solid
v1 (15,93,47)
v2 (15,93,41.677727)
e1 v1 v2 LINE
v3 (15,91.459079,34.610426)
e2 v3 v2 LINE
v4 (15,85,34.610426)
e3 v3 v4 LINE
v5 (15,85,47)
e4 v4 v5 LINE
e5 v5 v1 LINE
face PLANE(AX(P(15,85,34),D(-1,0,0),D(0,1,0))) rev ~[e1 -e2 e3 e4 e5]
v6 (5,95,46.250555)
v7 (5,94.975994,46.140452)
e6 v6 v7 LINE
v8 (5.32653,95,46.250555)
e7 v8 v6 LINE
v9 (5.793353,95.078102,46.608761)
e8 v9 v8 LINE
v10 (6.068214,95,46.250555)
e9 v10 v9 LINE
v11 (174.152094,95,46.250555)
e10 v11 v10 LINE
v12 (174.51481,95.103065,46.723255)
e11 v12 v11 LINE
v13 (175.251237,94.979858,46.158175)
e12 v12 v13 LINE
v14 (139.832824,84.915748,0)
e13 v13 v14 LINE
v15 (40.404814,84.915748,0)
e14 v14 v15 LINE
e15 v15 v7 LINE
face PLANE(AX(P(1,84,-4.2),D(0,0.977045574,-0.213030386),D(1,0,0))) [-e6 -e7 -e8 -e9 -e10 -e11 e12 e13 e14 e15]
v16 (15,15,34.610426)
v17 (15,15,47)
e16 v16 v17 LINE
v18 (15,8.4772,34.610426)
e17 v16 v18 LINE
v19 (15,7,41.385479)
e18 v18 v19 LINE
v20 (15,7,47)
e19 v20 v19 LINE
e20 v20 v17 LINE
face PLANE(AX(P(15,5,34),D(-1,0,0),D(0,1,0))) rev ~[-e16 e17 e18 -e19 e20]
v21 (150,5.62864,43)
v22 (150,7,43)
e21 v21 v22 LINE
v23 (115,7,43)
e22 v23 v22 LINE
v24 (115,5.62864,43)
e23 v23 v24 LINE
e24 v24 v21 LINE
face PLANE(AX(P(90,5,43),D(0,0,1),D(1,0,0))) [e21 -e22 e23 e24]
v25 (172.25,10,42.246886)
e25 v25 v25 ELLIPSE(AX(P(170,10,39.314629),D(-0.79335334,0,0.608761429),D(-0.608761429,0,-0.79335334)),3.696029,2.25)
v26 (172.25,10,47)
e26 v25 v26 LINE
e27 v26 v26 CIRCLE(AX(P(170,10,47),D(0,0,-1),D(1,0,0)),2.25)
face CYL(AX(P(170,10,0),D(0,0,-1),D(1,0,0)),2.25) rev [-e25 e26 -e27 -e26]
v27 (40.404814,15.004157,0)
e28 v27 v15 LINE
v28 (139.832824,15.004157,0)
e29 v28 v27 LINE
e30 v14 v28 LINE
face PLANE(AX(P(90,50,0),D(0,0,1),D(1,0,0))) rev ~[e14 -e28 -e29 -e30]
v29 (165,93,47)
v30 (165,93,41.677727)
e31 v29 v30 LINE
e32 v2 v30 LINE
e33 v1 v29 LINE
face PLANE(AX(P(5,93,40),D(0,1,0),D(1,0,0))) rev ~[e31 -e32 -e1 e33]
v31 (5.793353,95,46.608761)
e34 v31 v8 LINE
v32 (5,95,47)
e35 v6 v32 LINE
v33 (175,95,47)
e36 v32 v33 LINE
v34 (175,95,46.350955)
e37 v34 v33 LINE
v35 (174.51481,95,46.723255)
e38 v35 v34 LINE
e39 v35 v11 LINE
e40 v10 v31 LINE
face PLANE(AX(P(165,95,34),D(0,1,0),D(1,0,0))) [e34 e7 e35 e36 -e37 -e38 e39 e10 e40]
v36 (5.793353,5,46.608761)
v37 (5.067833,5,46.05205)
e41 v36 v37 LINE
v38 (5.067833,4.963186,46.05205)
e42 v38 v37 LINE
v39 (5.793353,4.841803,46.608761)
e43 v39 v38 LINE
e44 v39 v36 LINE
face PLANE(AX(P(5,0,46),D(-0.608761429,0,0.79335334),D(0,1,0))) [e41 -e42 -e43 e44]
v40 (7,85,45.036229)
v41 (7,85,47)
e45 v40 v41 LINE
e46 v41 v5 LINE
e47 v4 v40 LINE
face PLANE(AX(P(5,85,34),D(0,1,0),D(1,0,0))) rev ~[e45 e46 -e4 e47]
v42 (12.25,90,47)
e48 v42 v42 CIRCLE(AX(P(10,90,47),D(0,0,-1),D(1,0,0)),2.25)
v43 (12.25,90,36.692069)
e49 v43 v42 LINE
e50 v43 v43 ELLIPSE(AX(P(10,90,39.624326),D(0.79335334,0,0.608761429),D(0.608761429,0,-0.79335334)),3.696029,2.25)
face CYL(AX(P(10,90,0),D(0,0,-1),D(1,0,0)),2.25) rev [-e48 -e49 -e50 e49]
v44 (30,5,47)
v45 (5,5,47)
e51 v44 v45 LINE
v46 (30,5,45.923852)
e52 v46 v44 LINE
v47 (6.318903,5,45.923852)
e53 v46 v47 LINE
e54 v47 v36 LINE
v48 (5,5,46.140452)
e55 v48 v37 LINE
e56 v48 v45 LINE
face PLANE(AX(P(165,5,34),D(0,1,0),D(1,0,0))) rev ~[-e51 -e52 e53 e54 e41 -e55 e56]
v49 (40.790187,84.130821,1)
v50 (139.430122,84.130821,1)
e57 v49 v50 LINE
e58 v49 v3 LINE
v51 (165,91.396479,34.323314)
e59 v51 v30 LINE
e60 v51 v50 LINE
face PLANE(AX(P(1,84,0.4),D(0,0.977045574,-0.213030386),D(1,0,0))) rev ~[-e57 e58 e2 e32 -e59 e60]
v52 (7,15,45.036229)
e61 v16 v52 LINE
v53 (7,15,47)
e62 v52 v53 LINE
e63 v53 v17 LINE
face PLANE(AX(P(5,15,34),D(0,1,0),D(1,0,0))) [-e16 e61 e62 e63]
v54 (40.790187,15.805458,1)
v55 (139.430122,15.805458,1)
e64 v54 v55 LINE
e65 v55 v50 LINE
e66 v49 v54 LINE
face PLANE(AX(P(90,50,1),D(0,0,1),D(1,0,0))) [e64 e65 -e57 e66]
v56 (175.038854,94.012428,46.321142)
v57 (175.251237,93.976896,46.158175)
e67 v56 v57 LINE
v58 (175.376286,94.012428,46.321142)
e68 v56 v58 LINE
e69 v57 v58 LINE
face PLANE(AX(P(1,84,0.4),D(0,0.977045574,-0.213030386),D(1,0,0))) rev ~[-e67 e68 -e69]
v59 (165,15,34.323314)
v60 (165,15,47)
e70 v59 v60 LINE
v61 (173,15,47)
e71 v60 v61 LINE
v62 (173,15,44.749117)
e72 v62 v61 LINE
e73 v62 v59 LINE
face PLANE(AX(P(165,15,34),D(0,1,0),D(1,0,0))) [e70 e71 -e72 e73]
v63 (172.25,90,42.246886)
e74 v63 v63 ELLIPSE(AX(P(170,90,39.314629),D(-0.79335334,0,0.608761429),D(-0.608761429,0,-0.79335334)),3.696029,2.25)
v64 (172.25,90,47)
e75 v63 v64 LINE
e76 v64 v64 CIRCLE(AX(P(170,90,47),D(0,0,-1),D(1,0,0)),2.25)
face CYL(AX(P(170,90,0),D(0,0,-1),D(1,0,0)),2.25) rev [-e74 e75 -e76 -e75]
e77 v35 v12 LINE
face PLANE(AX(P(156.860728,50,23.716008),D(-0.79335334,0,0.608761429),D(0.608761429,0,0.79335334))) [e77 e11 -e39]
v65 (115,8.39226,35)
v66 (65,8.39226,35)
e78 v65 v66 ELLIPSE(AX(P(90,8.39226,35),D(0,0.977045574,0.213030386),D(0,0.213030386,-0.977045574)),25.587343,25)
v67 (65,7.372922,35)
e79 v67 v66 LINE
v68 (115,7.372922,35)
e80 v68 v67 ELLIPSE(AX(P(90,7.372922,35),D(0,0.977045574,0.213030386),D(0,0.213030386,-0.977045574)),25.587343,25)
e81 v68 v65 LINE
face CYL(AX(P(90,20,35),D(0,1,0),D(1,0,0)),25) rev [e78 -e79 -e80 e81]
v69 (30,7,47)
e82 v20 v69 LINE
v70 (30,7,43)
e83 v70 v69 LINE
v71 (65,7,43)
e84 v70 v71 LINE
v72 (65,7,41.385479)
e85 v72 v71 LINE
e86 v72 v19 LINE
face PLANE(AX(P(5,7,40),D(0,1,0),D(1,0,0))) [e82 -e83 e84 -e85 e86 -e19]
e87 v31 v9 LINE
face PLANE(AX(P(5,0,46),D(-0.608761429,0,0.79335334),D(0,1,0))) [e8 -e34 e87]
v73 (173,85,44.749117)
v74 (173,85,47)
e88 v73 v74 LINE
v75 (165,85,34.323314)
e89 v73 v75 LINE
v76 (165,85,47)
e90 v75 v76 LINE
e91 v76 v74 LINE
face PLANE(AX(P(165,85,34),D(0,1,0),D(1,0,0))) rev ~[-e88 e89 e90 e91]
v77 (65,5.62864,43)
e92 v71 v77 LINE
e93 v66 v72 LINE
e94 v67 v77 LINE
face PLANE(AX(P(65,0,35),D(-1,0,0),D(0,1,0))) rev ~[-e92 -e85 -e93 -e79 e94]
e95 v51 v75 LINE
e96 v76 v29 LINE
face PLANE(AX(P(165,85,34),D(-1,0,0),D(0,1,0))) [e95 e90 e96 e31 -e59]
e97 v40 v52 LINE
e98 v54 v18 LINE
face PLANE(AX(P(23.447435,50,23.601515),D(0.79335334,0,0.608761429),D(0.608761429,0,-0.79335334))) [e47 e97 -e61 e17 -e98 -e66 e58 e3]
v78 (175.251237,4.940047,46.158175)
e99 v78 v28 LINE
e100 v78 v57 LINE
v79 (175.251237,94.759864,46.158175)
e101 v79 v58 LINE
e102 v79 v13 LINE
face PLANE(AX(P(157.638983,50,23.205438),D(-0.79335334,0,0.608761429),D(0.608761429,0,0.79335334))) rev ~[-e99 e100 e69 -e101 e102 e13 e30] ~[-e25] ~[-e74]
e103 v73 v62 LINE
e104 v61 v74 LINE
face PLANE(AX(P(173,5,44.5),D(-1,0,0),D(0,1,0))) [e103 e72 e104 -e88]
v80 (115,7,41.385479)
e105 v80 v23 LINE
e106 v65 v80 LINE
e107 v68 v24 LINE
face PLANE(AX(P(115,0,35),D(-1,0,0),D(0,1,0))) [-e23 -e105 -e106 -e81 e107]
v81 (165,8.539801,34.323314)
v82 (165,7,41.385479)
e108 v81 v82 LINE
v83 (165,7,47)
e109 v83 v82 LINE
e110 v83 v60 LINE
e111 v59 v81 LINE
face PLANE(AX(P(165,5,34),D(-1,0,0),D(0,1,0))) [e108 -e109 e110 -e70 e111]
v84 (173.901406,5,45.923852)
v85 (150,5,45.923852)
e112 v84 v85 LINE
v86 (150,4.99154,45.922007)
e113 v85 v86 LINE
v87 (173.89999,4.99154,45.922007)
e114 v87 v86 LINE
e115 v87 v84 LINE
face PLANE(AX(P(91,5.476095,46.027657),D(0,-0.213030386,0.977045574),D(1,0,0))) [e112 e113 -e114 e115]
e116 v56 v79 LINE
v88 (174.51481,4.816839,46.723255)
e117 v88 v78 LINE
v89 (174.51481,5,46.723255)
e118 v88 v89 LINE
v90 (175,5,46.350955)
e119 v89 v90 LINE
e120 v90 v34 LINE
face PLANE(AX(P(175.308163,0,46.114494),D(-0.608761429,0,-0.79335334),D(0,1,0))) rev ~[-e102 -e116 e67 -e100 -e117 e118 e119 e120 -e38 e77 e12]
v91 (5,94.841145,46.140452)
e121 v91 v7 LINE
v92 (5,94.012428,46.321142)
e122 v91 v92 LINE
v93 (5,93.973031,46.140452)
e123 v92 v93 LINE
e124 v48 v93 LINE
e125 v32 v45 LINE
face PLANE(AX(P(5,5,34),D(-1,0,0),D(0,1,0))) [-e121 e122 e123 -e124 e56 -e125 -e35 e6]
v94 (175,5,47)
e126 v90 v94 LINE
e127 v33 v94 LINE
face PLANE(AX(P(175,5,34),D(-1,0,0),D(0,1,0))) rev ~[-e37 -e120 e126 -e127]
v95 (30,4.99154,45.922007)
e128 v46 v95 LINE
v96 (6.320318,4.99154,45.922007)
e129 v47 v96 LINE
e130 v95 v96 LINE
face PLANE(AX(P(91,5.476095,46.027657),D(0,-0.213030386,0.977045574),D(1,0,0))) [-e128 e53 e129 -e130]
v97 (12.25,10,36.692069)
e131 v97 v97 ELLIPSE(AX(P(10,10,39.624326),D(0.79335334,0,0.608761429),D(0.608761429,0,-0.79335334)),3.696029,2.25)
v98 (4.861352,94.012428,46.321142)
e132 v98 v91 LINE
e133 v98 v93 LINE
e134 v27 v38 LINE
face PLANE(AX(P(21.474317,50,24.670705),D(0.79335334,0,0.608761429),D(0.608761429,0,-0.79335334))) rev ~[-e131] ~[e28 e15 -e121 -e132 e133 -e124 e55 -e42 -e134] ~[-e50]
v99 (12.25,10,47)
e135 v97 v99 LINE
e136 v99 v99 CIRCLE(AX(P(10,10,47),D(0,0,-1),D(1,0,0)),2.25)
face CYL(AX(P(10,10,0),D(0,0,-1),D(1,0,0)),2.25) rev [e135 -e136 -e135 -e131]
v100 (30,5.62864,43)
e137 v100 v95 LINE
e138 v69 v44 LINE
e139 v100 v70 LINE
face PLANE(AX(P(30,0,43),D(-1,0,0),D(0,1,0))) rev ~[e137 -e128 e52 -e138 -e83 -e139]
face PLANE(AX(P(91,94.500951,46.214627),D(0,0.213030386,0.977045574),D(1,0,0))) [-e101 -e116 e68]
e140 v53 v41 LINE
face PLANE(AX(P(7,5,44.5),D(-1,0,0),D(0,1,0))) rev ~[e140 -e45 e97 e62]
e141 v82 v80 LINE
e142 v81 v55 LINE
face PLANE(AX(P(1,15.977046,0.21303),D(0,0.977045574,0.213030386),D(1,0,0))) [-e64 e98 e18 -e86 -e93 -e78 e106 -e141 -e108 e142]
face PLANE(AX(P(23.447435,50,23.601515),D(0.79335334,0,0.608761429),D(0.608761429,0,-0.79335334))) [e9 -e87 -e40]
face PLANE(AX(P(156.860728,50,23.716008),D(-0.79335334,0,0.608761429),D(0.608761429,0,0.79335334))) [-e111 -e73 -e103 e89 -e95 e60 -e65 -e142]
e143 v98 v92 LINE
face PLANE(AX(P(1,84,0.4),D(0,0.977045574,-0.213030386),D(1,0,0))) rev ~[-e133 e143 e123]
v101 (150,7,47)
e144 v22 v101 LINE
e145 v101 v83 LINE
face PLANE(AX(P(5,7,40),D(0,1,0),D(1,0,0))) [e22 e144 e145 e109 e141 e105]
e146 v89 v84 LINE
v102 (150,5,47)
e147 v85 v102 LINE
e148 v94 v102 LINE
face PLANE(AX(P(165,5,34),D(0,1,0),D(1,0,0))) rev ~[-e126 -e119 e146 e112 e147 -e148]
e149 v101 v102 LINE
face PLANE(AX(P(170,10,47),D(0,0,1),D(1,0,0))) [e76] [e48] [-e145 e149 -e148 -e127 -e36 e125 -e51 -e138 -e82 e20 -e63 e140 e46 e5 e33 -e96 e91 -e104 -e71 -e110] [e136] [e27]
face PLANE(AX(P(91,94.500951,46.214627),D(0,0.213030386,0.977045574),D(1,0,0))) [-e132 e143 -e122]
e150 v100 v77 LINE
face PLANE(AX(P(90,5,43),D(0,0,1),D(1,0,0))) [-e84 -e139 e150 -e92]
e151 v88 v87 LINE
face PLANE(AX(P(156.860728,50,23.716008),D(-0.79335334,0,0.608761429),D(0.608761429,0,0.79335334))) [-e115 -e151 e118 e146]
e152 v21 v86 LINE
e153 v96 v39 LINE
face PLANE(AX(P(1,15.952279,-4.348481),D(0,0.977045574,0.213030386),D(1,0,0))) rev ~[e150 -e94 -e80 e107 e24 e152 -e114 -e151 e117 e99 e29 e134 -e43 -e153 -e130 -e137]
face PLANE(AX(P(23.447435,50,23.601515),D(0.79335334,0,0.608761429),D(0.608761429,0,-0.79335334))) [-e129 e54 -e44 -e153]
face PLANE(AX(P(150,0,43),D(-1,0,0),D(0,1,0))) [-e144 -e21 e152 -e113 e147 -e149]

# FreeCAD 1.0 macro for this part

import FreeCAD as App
import Part
import Sketcher

V = App.Vector


def add_polygon(sketch, points):
    """Adds a closed chain of lines whose ends are joined by coincident constraints."""
    first, n = sketch.GeometryCount, len(points)
    for a, b in zip(points, points[1:] + points[:1]):
        sketch.addGeometry(Part.LineSegment(App.Vector(*a, 0), App.Vector(*b, 0)), False)
    for i in range(n):
        sketch.addConstraint(Sketcher.Constraint("Coincident", first + i, 2, first + (i + 1) % n, 1))

doc = App.newDocument("Part")
body = doc.addObject("PartDesign::Body", "Body")

# Sketch on XY plane
sketch1 = doc.addObject("Sketcher::SketchObject", "Sketch")
body.addObject(sketch1)
sketch1.AttachmentSupport = (doc.XY_Plane, [""])
sketch1.MapMode = "FlatFace"
sketch1.AttachmentOffset = App.Placement(V(0, 0, 35), App.Rotation())
add_polygon(sketch1, [(65, 20), (65, 0), (115, 0), (115, 20)])  # lines 0-3
sketch1.addConstraint(Sketcher.Constraint("Vertical", 0))
sketch1.addConstraint(Sketcher.Constraint("Horizontal", 1))
sketch1.addConstraint(Sketcher.Constraint("Vertical", 2))
sketch1.addConstraint(Sketcher.Constraint("Horizontal", 3))
sketch1.addConstraint(Sketcher.Constraint("PointOnObject", 0, 2, -1))
sketch1.addConstraint(Sketcher.Constraint("DistanceX", 1, 1, 1, 2, 50.0))
sketch1.addConstraint(Sketcher.Constraint("DistanceY", 0, 2, 0, 1, 20.0))
sketch1.addConstraint(Sketcher.Constraint("DistanceX", -1, 1, 0, 2, 65.0))
pad1 = doc.addObject("PartDesign::Pad", "Pad")
body.addObject(pad1)
pad1.Profile = sketch1
pad1.Length = 25
body2 = doc.addObject("PartDesign::Body", "Body001")

# Sketch on XY plane
sketch2 = doc.addObject("Sketcher::SketchObject", "Sketch001")
body2.addObject(sketch2)
sketch2.AttachmentSupport = (doc.getObject("XY_Plane001"), [""])
sketch2.MapMode = "FlatFace"
sketch2.addGeometry(Part.Circle(V(0, 0, 0), V(0, 0, 1), 25), False)
sketch2.addConstraint(Sketcher.Constraint("Coincident", 0, 3, -1, 1))
sketch2.addConstraint(Sketcher.Constraint("Diameter", 0, 50.0))
pad2 = doc.addObject("PartDesign::Pad", "Pad001")
body2.addObject(pad2)
pad2.Profile = sketch2
pad2.Length = 20
body3 = doc.addObject("PartDesign::Body", "Body002")
doc.recompute()

body2.Placement = App.Placement(V(0, 0, 0), App.Rotation(V(1, 0, 0), 90))
boolean = doc.addObject("PartDesign::Boolean", "Boolean")
body3.addObject(boolean)
boolean.Type = "Fuse"
boolean.addObjects([body2])
body4 = doc.addObject("PartDesign::Body", "Body003")
doc.recompute()

body3.Placement = App.Placement(V(90, 20, 35), App.Rotation(V(0, 0, 1), 0))
boolean2 = doc.addObject("PartDesign::Boolean", "Boolean001")
body4.addObject(boolean2)
boolean2.Type = "Fuse"
boolean2.addObjects([body3])
body5 = doc.addObject("PartDesign::Body", "Body004")

# Sketch on XY plane
sketch3 = doc.addObject("Sketcher::SketchObject", "Sketch002")
body5.addObject(sketch3)
sketch3.AttachmentSupport = (doc.getObject("XY_Plane004"), [""])
sketch3.MapMode = "FlatFace"
sketch3.AttachmentOffset = App.Placement(V(0, 0, 43), App.Rotation())
add_polygon(sketch3, [(30, 10), (30, 0), (150, 0), (150, 10)])  # lines 0-3
sketch3.addConstraint(Sketcher.Constraint("Vertical", 0))
sketch3.addConstraint(Sketcher.Constraint("Horizontal", 1))
sketch3.addConstraint(Sketcher.Constraint("Vertical", 2))
sketch3.addConstraint(Sketcher.Constraint("Horizontal", 3))
sketch3.addConstraint(Sketcher.Constraint("PointOnObject", 0, 2, -1))
sketch3.addConstraint(Sketcher.Constraint("DistanceX", 1, 1, 1, 2, 120.0))
sketch3.addConstraint(Sketcher.Constraint("DistanceY", 0, 2, 0, 1, 10.0))
sketch3.addConstraint(Sketcher.Constraint("DistanceX", -1, 1, 0, 2, 30.0))
pad3 = doc.addObject("PartDesign::Pad", "Pad002")
body5.addObject(pad3)
pad3.Profile = sketch3
pad3.Length = 10
body6 = doc.addObject("PartDesign::Body", "Body005")

# Sketch on XY plane
sketch4 = doc.addObject("Sketcher::SketchObject", "Sketch003")
body6.addObject(sketch4)
sketch4.AttachmentSupport = (doc.getObject("XY_Plane005"), [""])
sketch4.MapMode = "FlatFace"
sketch4.addGeometry(Part.Circle(V(170, 90, 0), V(0, 0, 1), 2.2), False)
sketch4.addConstraint(Sketcher.Constraint("Diameter", 0, 4.5))
sketch4.addConstraint(Sketcher.Constraint("DistanceX", -1, 1, 0, 3, 170.0))
sketch4.addConstraint(Sketcher.Constraint("DistanceY", -1, 1, 0, 3, 90.0))
pad4 = doc.addObject("PartDesign::Pad", "Pad003")
body6.addObject(pad4)
pad4.Profile = sketch4
pad4.Length = 60
body7 = doc.addObject("PartDesign::Body", "Body006")

# Sketch on XY plane
sketch5 = doc.addObject("Sketcher::SketchObject", "Sketch004")
body7.addObject(sketch5)
sketch5.AttachmentSupport = (doc.getObject("XY_Plane006"), [""])
sketch5.MapMode = "FlatFace"
sketch5.addGeometry(Part.Circle(V(10, 90, 0), V(0, 0, 1), 2.2), False)
sketch5.addConstraint(Sketcher.Constraint("Diameter", 0, 4.5))
sketch5.addConstraint(Sketcher.Constraint("DistanceX", -1, 1, 0, 3, 10.0))
sketch5.addConstraint(Sketcher.Constraint("DistanceY", -1, 1, 0, 3, 90.0))
pad5 = doc.addObject("PartDesign::Pad", "Pad004")
body7.addObject(pad5)
pad5.Profile = sketch5
pad5.Length = 60
body8 = doc.addObject("PartDesign::Body", "Body007")

# Sketch on XY plane
sketch6 = doc.addObject("Sketcher::SketchObject", "Sketch005")
body8.addObject(sketch6)
sketch6.AttachmentSupport = (doc.getObject("XY_Plane007"), [""])
sketch6.MapMode = "FlatFace"
sketch6.addGeometry(Part.Circle(V(170, 10, 0), V(0, 0, 1), 2.2), False)
sketch6.addConstraint(Sketcher.Constraint("Diameter", 0, 4.5))
sketch6.addConstraint(Sketcher.Constraint("DistanceX", -1, 1, 0, 3, 170.0))
sketch6.addConstraint(Sketcher.Constraint("DistanceY", -1, 1, 0, 3, 10.0))
pad6 = doc.addObject("PartDesign::Pad", "Pad005")
body8.addObject(pad6)
pad6.Profile = sketch6
pad6.Length = 60
body9 = doc.addObject("PartDesign::Body", "Body008")

# Sketch on XY plane
sketch7 = doc.addObject("Sketcher::SketchObject", "Sketch006")
body9.addObject(sketch7)
sketch7.AttachmentSupport = (doc.getObject("XY_Plane008"), [""])
sketch7.MapMode = "FlatFace"
sketch7.addGeometry(Part.Circle(V(10, 10, 0), V(0, 0, 1), 2.2), False)
sketch7.addConstraint(Sketcher.Constraint("Diameter", 0, 4.5))
sketch7.addConstraint(Sketcher.Constraint("DistanceX", -1, 1, 0, 3, 10.0))
sketch7.addConstraint(Sketcher.Constraint("DistanceY", -1, 1, 0, 3, 10.0))
pad7 = doc.addObject("PartDesign::Pad", "Pad006")
body9.addObject(pad7)
pad7.Profile = sketch7
pad7.Length = 60
body10 = doc.addObject("PartDesign::Body", "Body009")

# Sketch on XY plane
sketch8 = doc.addObject("Sketcher::SketchObject", "Sketch007")
body10.addObject(sketch8)
sketch8.AttachmentSupport = (doc.getObject("XY_Plane009"), [""])
sketch8.MapMode = "FlatFace"
add_polygon(sketch8, [(0, 50), (0, 0), (180, 0), (180, 50)])  # lines 0-3
sketch8.addConstraint(Sketcher.Constraint("Vertical", 0))
sketch8.addConstraint(Sketcher.Constraint("Horizontal", 1))
sketch8.addConstraint(Sketcher.Constraint("Vertical", 2))
sketch8.addConstraint(Sketcher.Constraint("Horizontal", 3))
sketch8.addConstraint(Sketcher.Constraint("Coincident", 0, 2, -1, 1))
sketch8.addConstraint(Sketcher.Constraint("DistanceX", 1, 1, 1, 2, 180.0))
sketch8.addConstraint(Sketcher.Constraint("DistanceY", 0, 2, 0, 1, 50.0))
pad8 = doc.addObject("PartDesign::Pad", "Pad007")
body10.addObject(pad8)
pad8.Profile = sketch8
pad8.Length = 60
body11 = doc.addObject("PartDesign::Body", "Body010")
doc.recompute()

body10.Placement = App.Placement(V(0, 0, 0), App.Rotation(V(1, 0, 0), 347.7))
boolean3 = doc.addObject("PartDesign::Boolean", "Boolean002")
body11.addObject(boolean3)
boolean3.Type = "Fuse"
boolean3.addObjects([body10])
body12 = doc.addObject("PartDesign::Body", "Body011")
doc.recompute()

body11.Placement = App.Placement(V(1, 84, -4.2), App.Rotation(V(0, 0, 1), 0))
boolean4 = doc.addObject("PartDesign::Boolean", "Boolean003")
body12.addObject(boolean4)
boolean4.Type = "Fuse"
boolean4.addObjects([body11])
body13 = doc.addObject("PartDesign::Body", "Body012")

# Sketch on XY plane
sketch9 = doc.addObject("Sketcher::SketchObject", "Sketch008")
body13.addObject(sketch9)
sketch9.AttachmentSupport = (doc.getObject("XY_Plane012"), [""])
sketch9.MapMode = "FlatFace"
add_polygon(sketch9, [(0, 50), (0, 0), (180, 0), (180, 50)])  # lines 0-3
sketch9.addConstraint(Sketcher.Constraint("Vertical", 0))
sketch9.addConstraint(Sketcher.Constraint("Horizontal", 1))
sketch9.addConstraint(Sketcher.Constraint("Vertical", 2))
sketch9.addConstraint(Sketcher.Constraint("Horizontal", 3))
sketch9.addConstraint(Sketcher.Constraint("Coincident", 0, 2, -1, 1))
sketch9.addConstraint(Sketcher.Constraint("DistanceX", 1, 1, 1, 2, 180.0))
sketch9.addConstraint(Sketcher.Constraint("DistanceY", 0, 2, 0, 1, 50.0))
pad9 = doc.addObject("PartDesign::Pad", "Pad008")
body13.addObject(pad9)
pad9.Profile = sketch9
pad9.Length = 60
body14 = doc.addObject("PartDesign::Body", "Body013")
doc.recompute()

body13.Placement = App.Placement(V(0, 0, 0), App.Rotation(V(1, 0, 0), 12.3))
boolean5 = doc.addObject("PartDesign::Boolean", "Boolean004")
body14.addObject(boolean5)
boolean5.Type = "Fuse"
boolean5.addObjects([body13])
body15 = doc.addObject("PartDesign::Body", "Body014")
doc.recompute()

body14.Placement = App.Placement(V(1, -32.9, -15), App.Rotation(V(0, 0, 1), 0))
boolean6 = doc.addObject("PartDesign::Boolean", "Boolean005")
body15.addObject(boolean6)
boolean6.Type = "Fuse"
boolean6.addObjects([body14])
body16 = doc.addObject("PartDesign::Body", "Body015")

# Sketch on XY plane
sketch10 = doc.addObject("Sketcher::SketchObject", "Sketch009")
body16.addObject(sketch10)
sketch10.AttachmentSupport = (doc.getObject("XY_Plane015"), [""])
sketch10.MapMode = "FlatFace"
add_polygon(sketch10, [(0, 100), (0, 0), (70, 0), (70, 100)])  # lines 0-3
sketch10.addConstraint(Sketcher.Constraint("Vertical", 0))
sketch10.addConstraint(Sketcher.Constraint("Horizontal", 1))
sketch10.addConstraint(Sketcher.Constraint("Vertical", 2))
sketch10.addConstraint(Sketcher.Constraint("Horizontal", 3))
sketch10.addConstraint(Sketcher.Constraint("Coincident", 0, 2, -1, 1))
sketch10.addConstraint(Sketcher.Constraint("DistanceX", 1, 1, 1, 2, 70.0))
sketch10.addConstraint(Sketcher.Constraint("DistanceY", 0, 2, 0, 1, 100.0))
pad10 = doc.addObject("PartDesign::Pad", "Pad009")
body16.addObject(pad10)
pad10.Profile = sketch10
pad10.Length = 50
body17 = doc.addObject("PartDesign::Body", "Body016")
doc.recompute()

body16.Placement = App.Placement(V(0, 0, 0), App.Rotation(V(0, 1, 0), 52.5))
boolean7 = doc.addObject("PartDesign::Boolean", "Boolean006")
body17.addObject(boolean7)
boolean7.Type = "Fuse"
boolean7.addObjects([body16])
body18 = doc.addObject("PartDesign::Body", "Body017")
doc.recompute()

body17.Placement = App.Placement(V(-39.5, 0, 22), App.Rotation(V(0, 0, 1), 0))
boolean8 = doc.addObject("PartDesign::Boolean", "Boolean007")
body18.addObject(boolean8)
boolean8.Type = "Fuse"
boolean8.addObjects([body17])
body19 = doc.addObject("PartDesign::Body", "Body018")

# Sketch on XY plane
sketch11 = doc.addObject("Sketcher::SketchObject", "Sketch010")
body19.addObject(sketch11)
sketch11.AttachmentSupport = (doc.getObject("XY_Plane018"), [""])
sketch11.MapMode = "FlatFace"
add_polygon(sketch11, [(0, 100), (0, 0), (70, 0), (70, 100)])  # lines 0-3
sketch11.addConstraint(Sketcher.Constraint("Vertical", 0))
sketch11.addConstraint(Sketcher.Constraint("Horizontal", 1))
sketch11.addConstraint(Sketcher.Constraint("Vertical", 2))
sketch11.addConstraint(Sketcher.Constraint("Horizontal", 3))
sketch11.addConstraint(Sketcher.Constraint("Coincident", 0, 2, -1, 1))
sketch11.addConstraint(Sketcher.Constraint("DistanceX", 1, 1, 1, 2, 70.0))
sketch11.addConstraint(Sketcher.Constraint("DistanceY", 0, 2, 0, 1, 100.0))
pad11 = doc.addObject("PartDesign::Pad", "Pad010")
body19.addObject(pad11)
pad11.Profile = sketch11
pad11.Length = 50
body20 = doc.addObject("PartDesign::Body", "Body019")
doc.recompute()

body19.Placement = App.Placement(V(0, 0, 0), App.Rotation(V(0, 1, 0), 307.5))
boolean9 = doc.addObject("PartDesign::Boolean", "Boolean008")
body20.addObject(boolean9)
boolean9.Type = "Fuse"
boolean9.addObjects([body19])
body21 = doc.addObject("PartDesign::Body", "Body020")
doc.recompute()

body20.Placement = App.Placement(V(176, 0, -35), App.Rotation(V(0, 0, 1), 0))
boolean10 = doc.addObject("PartDesign::Boolean", "Boolean009")
body21.addObject(boolean10)
boolean10.Type = "Fuse"
boolean10.addObjects([body20])
body22 = doc.addObject("PartDesign::Body", "Body021")

# Sketch on XY plane
sketch12 = doc.addObject("Sketcher::SketchObject", "Sketch011")
body22.addObject(sketch12)
sketch12.AttachmentSupport = (doc.getObject("XY_Plane021"), [""])
sketch12.MapMode = "FlatFace"
add_polygon(sketch12, [(40, 85), (40, 15), (140, 15), (140, 85)])  # lines 0-3
sketch12.addConstraint(Sketcher.Constraint("Vertical", 0))
sketch12.addConstraint(Sketcher.Constraint("Horizontal", 1))
sketch12.addConstraint(Sketcher.Constraint("Vertical", 2))
sketch12.addConstraint(Sketcher.Constraint("Horizontal", 3))
sketch12.addConstraint(Sketcher.Constraint("DistanceX", 1, 1, 1, 2, 100.0))
sketch12.addConstraint(Sketcher.Constraint("DistanceY", 0, 2, 0, 1, 70.0))
sketch12.addConstraint(Sketcher.Constraint("DistanceX", -1, 1, 0, 2, 40.0))
sketch12.addConstraint(Sketcher.Constraint("DistanceY", -1, 1, 0, 2, 15.0))
pad12 = doc.addObject("PartDesign::Pad", "Pad011")
body22.addObject(pad12)
pad12.Profile = sketch12
pad12.Length = 1
body23 = doc.addObject("PartDesign::Body", "Body022")

# Sketch on XY plane
sketch13 = doc.addObject("Sketcher::SketchObject", "Sketch012")
body23.addObject(sketch13)
sketch13.AttachmentSupport = (doc.getObject("XY_Plane022"), [""])
sketch13.MapMode = "FlatFace"
sketch13.AttachmentOffset = App.Placement(V(0, 0, 40), App.Rotation())
add_polygon(sketch13, [(5, 95), (5, 93), (175, 93), (175, 95)])  # lines 0-3
sketch13.addConstraint(Sketcher.Constraint("Vertical", 0))
sketch13.addConstraint(Sketcher.Constraint("Horizontal", 1))
sketch13.addConstraint(Sketcher.Constraint("Vertical", 2))
sketch13.addConstraint(Sketcher.Constraint("Horizontal", 3))
sketch13.addConstraint(Sketcher.Constraint("DistanceX", 1, 1, 1, 2, 170.0))
sketch13.addConstraint(Sketcher.Constraint("DistanceY", 0, 2, 0, 1, 2.0))
sketch13.addConstraint(Sketcher.Constraint("DistanceX", -1, 1, 0, 2, 5.0))
sketch13.addConstraint(Sketcher.Constraint("DistanceY", -1, 1, 0, 2, 93.0))
pad13 = doc.addObject("PartDesign::Pad", "Pad012")
body23.addObject(pad13)
pad13.Profile = sketch13
pad13.Length = 7
body24 = doc.addObject("PartDesign::Body", "Body023")

# Sketch on XY plane
sketch14 = doc.addObject("Sketcher::SketchObject", "Sketch013")
body24.addObject(sketch14)
sketch14.AttachmentSupport = (doc.getObject("XY_Plane023"), [""])
sketch14.MapMode = "FlatFace"
sketch14.AttachmentOffset = App.Placement(V(0, 0, 40), App.Rotation())
add_polygon(sketch14, [(5, 7), (5, 5), (175, 5), (175, 7)])  # lines 0-3
sketch14.addConstraint(Sketcher.Constraint("Vertical", 0))
sketch14.addConstraint(Sketcher.Constraint("Horizontal", 1))
sketch14.addConstraint(Sketcher.Constraint("Vertical", 2))
sketch14.addConstraint(Sketcher.Constraint("Horizontal", 3))
sketch14.addConstraint(Sketcher.Constraint("DistanceX", 1, 1, 1, 2, 170.0))
sketch14.addConstraint(Sketcher.Constraint("DistanceY", 0, 2, 0, 1, 2.0))
sketch14.addConstraint(Sketcher.Constraint("DistanceX", -1, 1, 0, 2, 5.0))
sketch14.addConstraint(Sketcher.Constraint("DistanceY", -1, 1, 0, 2, 5.0))
pad14 = doc.addObject("PartDesign::Pad", "Pad013")
body24.addObject(pad14)
pad14.Profile = sketch14
pad14.Length = 7
body25 = doc.addObject("PartDesign::Body", "Body024")

# Sketch on XY plane
sketch15 = doc.addObject("Sketcher::SketchObject", "Sketch014")
body25.addObject(sketch15)
sketch15.AttachmentSupport = (doc.getObject("XY_Plane024"), [""])
sketch15.MapMode = "FlatFace"
sketch15.AttachmentOffset = App.Placement(V(0, 0, 44.5), App.Rotation())
add_polygon(sketch15, [(173, 85), (173, 5), (175, 5), (175, 85)])  # lines 0-3
sketch15.addConstraint(Sketcher.Constraint("Vertical", 0))
sketch15.addConstraint(Sketcher.Constraint("Horizontal", 1))
sketch15.addConstraint(Sketcher.Constraint("Vertical", 2))
sketch15.addConstraint(Sketcher.Constraint("Horizontal", 3))
sketch15.addConstraint(Sketcher.Constraint("DistanceX", 1, 1, 1, 2, 2.0))
sketch15.addConstraint(Sketcher.Constraint("DistanceY", 0, 2, 0, 1, 80.0))
sketch15.addConstraint(Sketcher.Constraint("DistanceX", -1, 1, 0, 2, 173.0))
sketch15.addConstraint(Sketcher.Constraint("DistanceY", -1, 1, 0, 2, 5.0))
pad15 = doc.addObject("PartDesign::Pad", "Pad014")
body25.addObject(pad15)
pad15.Profile = sketch15
pad15.Length = 2.5
body26 = doc.addObject("PartDesign::Body", "Body025")

# Sketch on XY plane
sketch16 = doc.addObject("Sketcher::SketchObject", "Sketch015")
body26.addObject(sketch16)
sketch16.AttachmentSupport = (doc.getObject("XY_Plane025"), [""])
sketch16.MapMode = "FlatFace"
sketch16.AttachmentOffset = App.Placement(V(0, 0, 44.5), App.Rotation())
add_polygon(sketch16, [(5, 85), (5, 5), (7, 5), (7, 85)])  # lines 0-3
sketch16.addConstraint(Sketcher.Constraint("Vertical", 0))
sketch16.addConstraint(Sketcher.Constraint("Horizontal", 1))
sketch16.addConstraint(Sketcher.Constraint("Vertical", 2))
sketch16.addConstraint(Sketcher.Constraint("Horizontal", 3))
sketch16.addConstraint(Sketcher.Constraint("DistanceX", 1, 1, 1, 2, 2.0))
sketch16.addConstraint(Sketcher.Constraint("DistanceY", 0, 2, 0, 1, 80.0))
sketch16.addConstraint(Sketcher.Constraint("DistanceX", -1, 1, 0, 2, 5.0))
sketch16.addConstraint(Sketcher.Constraint("DistanceY", -1, 1, 0, 2, 5.0))
pad16 = doc.addObject("PartDesign::Pad", "Pad015")
body26.addObject(pad16)
pad16.Profile = sketch16
pad16.Length = 2.5
body27 = doc.addObject("PartDesign::Body", "Body026")

# Sketch on XY plane
sketch17 = doc.addObject("Sketcher::SketchObject", "Sketch016")
body27.addObject(sketch17)
sketch17.AttachmentSupport = (doc.getObject("XY_Plane026"), [""])
sketch17.MapMode = "FlatFace"
sketch17.AttachmentOffset = App.Placement(V(0, 0, 34), App.Rotation())
add_polygon(sketch17, [(5, 95), (5, 85), (15, 85), (15, 95)])  # lines 0-3
sketch17.addConstraint(Sketcher.Constraint("Vertical", 0))
sketch17.addConstraint(Sketcher.Constraint("Horizontal", 1))
sketch17.addConstraint(Sketcher.Constraint("Vertical", 2))
sketch17.addConstraint(Sketcher.Constraint("Horizontal", 3))
sketch17.addConstraint(Sketcher.Constraint("Equal", 3, 0))
sketch17.addConstraint(Sketcher.Constraint("DistanceX", 1, 1, 1, 2, 10.0))
sketch17.addConstraint(Sketcher.Constraint("DistanceX", -1, 1, 0, 2, 5.0))
sketch17.addConstraint(Sketcher.Constraint("DistanceY", -1, 1, 0, 2, 85.0))
pad17 = doc.addObject("PartDesign::Pad", "Pad016")
body27.addObject(pad17)
pad17.Profile = sketch17
pad17.Length = 13
body28 = doc.addObject("PartDesign::Body", "Body027")

# Sketch on XY plane
sketch18 = doc.addObject("Sketcher::SketchObject", "Sketch017")
body28.addObject(sketch18)
sketch18.AttachmentSupport = (doc.getObject("XY_Plane027"), [""])
sketch18.MapMode = "FlatFace"
sketch18.AttachmentOffset = App.Placement(V(0, 0, 34), App.Rotation())
add_polygon(sketch18, [(165, 95), (165, 85), (175, 85), (175, 95)])  # lines 0-3
sketch18.addConstraint(Sketcher.Constraint("Vertical", 0))
sketch18.addConstraint(Sketcher.Constraint("Horizontal", 1))
sketch18.addConstraint(Sketcher.Constraint("Vertical", 2))
sketch18.addConstraint(Sketcher.Constraint("Horizontal", 3))
sketch18.addConstraint(Sketcher.Constraint("Equal", 3, 0))
sketch18.addConstraint(Sketcher.Constraint("DistanceX", 1, 1, 1, 2, 10.0))
sketch18.addConstraint(Sketcher.Constraint("DistanceX", -1, 1, 0, 2, 165.0))
sketch18.addConstraint(Sketcher.Constraint("DistanceY", -1, 1, 0, 2, 85.0))
pad18 = doc.addObject("PartDesign::Pad", "Pad017")
body28.addObject(pad18)
pad18.Profile = sketch18
pad18.Length = 13
body29 = doc.addObject("PartDesign::Body", "Body028")

# Sketch on XY plane
sketch19 = doc.addObject("Sketcher::SketchObject", "Sketch018")
body29.addObject(sketch19)
sketch19.AttachmentSupport = (doc.getObject("XY_Plane028"), [""])
sketch19.MapMode = "FlatFace"
sketch19.AttachmentOffset = App.Placement(V(0, 0, 34), App.Rotation())
add_polygon(sketch19, [(165, 15), (165, 5), (175, 5), (175, 15)])  # lines 0-3
sketch19.addConstraint(Sketcher.Constraint("Vertical", 0))
sketch19.addConstraint(Sketcher.Constraint("Horizontal", 1))
sketch19.addConstraint(Sketcher.Constraint("Vertical", 2))
sketch19.addConstraint(Sketcher.Constraint("Horizontal", 3))
sketch19.addConstraint(Sketcher.Constraint("Equal", 3, 0))
sketch19.addConstraint(Sketcher.Constraint("DistanceX", 1, 1, 1, 2, 10.0))
sketch19.addConstraint(Sketcher.Constraint("DistanceX", -1, 1, 0, 2, 165.0))
sketch19.addConstraint(Sketcher.Constraint("DistanceY", -1, 1, 0, 2, 5.0))
pad19 = doc.addObject("PartDesign::Pad", "Pad018")
body29.addObject(pad19)
pad19.Profile = sketch19
pad19.Length = 13
body30 = doc.addObject("PartDesign::Body", "Body029")

# Sketch on XY plane
sketch20 = doc.addObject("Sketcher::SketchObject", "Sketch019")
body30.addObject(sketch20)
sketch20.AttachmentSupport = (doc.getObject("XY_Plane029"), [""])
sketch20.MapMode = "FlatFace"
sketch20.AttachmentOffset = App.Placement(V(0, 0, 34), App.Rotation())
add_polygon(sketch20, [(5, 15), (5, 5), (15, 5), (15, 15)])  # lines 0-3
sketch20.addConstraint(Sketcher.Constraint("Vertical", 0))
sketch20.addConstraint(Sketcher.Constraint("Horizontal", 1))
sketch20.addConstraint(Sketcher.Constraint("Vertical", 2))
sketch20.addConstraint(Sketcher.Constraint("Horizontal", 3))
sketch20.addConstraint(Sketcher.Constraint("Equal", 3, 0))
sketch20.addConstraint(Sketcher.Constraint("DistanceX", 1, 1, 1, 2, 10.0))
sketch20.addConstraint(Sketcher.Constraint("DistanceX", -1, 1, 0, 2, 5.0))
sketch20.addConstraint(Sketcher.Constraint("DistanceY", -1, 1, 0, 2, 5.0))
pad20 = doc.addObject("PartDesign::Pad", "Pad019")
body30.addObject(pad20)
pad20.Profile = sketch20
pad20.Length = 13
body31 = doc.addObject("PartDesign::Body", "Body030")

# Sketch on XY plane
sketch21 = doc.addObject("Sketcher::SketchObject", "Sketch020")
body31.addObject(sketch21)
sketch21.AttachmentSupport = (doc.getObject("XY_Plane030"), [""])
sketch21.MapMode = "FlatFace"
add_polygon(sketch21, [(0, 1), (0, 0), (180, 0), (180, 1)])  # lines 0-3
sketch21.addConstraint(Sketcher.Constraint("Vertical", 0))
sketch21.addConstraint(Sketcher.Constraint("Horizontal", 1))
sketch21.addConstraint(Sketcher.Constraint("Vertical", 2))
sketch21.addConstraint(Sketcher.Constraint("Horizontal", 3))
sketch21.addConstraint(Sketcher.Constraint("Coincident", 0, 2, -1, 1))
sketch21.addConstraint(Sketcher.Constraint("DistanceX", 1, 1, 1, 2, 180.0))
sketch21.addConstraint(Sketcher.Constraint("DistanceY", 0, 2, 0, 1, 1.0))
pad21 = doc.addObject("PartDesign::Pad", "Pad020")
body31.addObject(pad21)
pad21.Profile = sketch21
pad21.Length = 47
body32 = doc.addObject("PartDesign::Body", "Body031")
doc.recompute()

body31.Placement = App.Placement(V(0, 0, 0), App.Rotation(V(1, 0, 0), 347.7))
boolean11 = doc.addObject("PartDesign::Boolean", "Boolean010")
body32.addObject(boolean11)
boolean11.Type = "Fuse"
boolean11.addObjects([body31])
body33 = doc.addObject("PartDesign::Body", "Body032")
doc.recompute()

body32.Placement = App.Placement(V(1, 84, 0.4), App.Rotation(V(0, 0, 1), 0))
boolean12 = doc.addObject("PartDesign::Boolean", "Boolean011")
body33.addObject(boolean12)
boolean12.Type = "Fuse"
boolean12.addObjects([body32])
body34 = doc.addObject("PartDesign::Body", "Body033")

# Sketch on XY plane
sketch22 = doc.addObject("Sketcher::SketchObject", "Sketch021")
body34.addObject(sketch22)
sketch22.AttachmentSupport = (doc.getObject("XY_Plane033"), [""])
sketch22.MapMode = "FlatFace"
add_polygon(sketch22, [(0, 1), (0, 0), (180, 0), (180, 1)])  # lines 0-3
sketch22.addConstraint(Sketcher.Constraint("Vertical", 0))
sketch22.addConstraint(Sketcher.Constraint("Horizontal", 1))
sketch22.addConstraint(Sketcher.Constraint("Vertical", 2))
sketch22.addConstraint(Sketcher.Constraint("Horizontal", 3))
sketch22.addConstraint(Sketcher.Constraint("Coincident", 0, 2, -1, 1))
sketch22.addConstraint(Sketcher.Constraint("DistanceX", 1, 1, 1, 2, 180.0))
sketch22.addConstraint(Sketcher.Constraint("DistanceY", 0, 2, 0, 1, 1.0))
pad22 = doc.addObject("PartDesign::Pad", "Pad021")
body34.addObject(pad22)
pad22.Profile = sketch22
pad22.Length = 47
body35 = doc.addObject("PartDesign::Body", "Body034")
doc.recompute()

body34.Placement = App.Placement(V(0, 0, 0), App.Rotation(V(1, 0, 0), 12.3))
boolean13 = doc.addObject("PartDesign::Boolean", "Boolean012")
body35.addObject(boolean13)
boolean13.Type = "Fuse"
boolean13.addObjects([body34])
body36 = doc.addObject("PartDesign::Body", "Body035")
body36.AllowCompound = True
doc.recompute()

body35.Placement = App.Placement(V(1, 15, 0), App.Rotation(V(0, 0, 1), 0))
boolean14 = doc.addObject("PartDesign::Boolean", "Boolean013")
body36.addObject(boolean14)
boolean14.Type = "Fuse"
boolean14.addObjects([body35])
doc.recompute()

boolean15 = doc.addObject("PartDesign::Boolean", "Boolean014")
body36.addObject(boolean15)
boolean15.Type = "Fuse"
boolean15.addObjects([body33])
body37 = doc.addObject("PartDesign::Body", "Body036")

# Sketch on XY plane
sketch23 = doc.addObject("Sketcher::SketchObject", "Sketch022")
body37.addObject(sketch23)
sketch23.AttachmentSupport = (doc.getObject("XY_Plane036"), [""])
sketch23.MapMode = "FlatFace"
add_polygon(sketch23, [(0, 100), (0, 0), (58, 0), (58, 100)])  # lines 0-3
sketch23.addConstraint(Sketcher.Constraint("Vertical", 0))
sketch23.addConstraint(Sketcher.Constraint("Horizontal", 1))
sketch23.addConstraint(Sketcher.Constraint("Vertical", 2))
sketch23.addConstraint(Sketcher.Constraint("Horizontal", 3))
sketch23.addConstraint(Sketcher.Constraint("Coincident", 0, 2, -1, 1))
sketch23.addConstraint(Sketcher.Constraint("DistanceX", 1, 1, 1, 2, 58.0))
sketch23.addConstraint(Sketcher.Constraint("DistanceY", 0, 2, 0, 1, 100.0))
pad23 = doc.addObject("PartDesign::Pad", "Pad022")
body37.addObject(pad23)
pad23.Profile = sketch23
pad23.Length = 1
body38 = doc.addObject("PartDesign::Body", "Body037")
doc.recompute()

body37.Placement = App.Placement(V(0, 0, 0), App.Rotation(V(0, 1, 0), 307.5))
boolean16 = doc.addObject("PartDesign::Boolean", "Boolean015")
body38.addObject(boolean16)
boolean16.Type = "Fuse"
boolean16.addObjects([body37])
body39 = doc.addObject("PartDesign::Body", "Body038")
doc.recompute()

body38.Placement = App.Placement(V(140, 0, 0.1), App.Rotation(V(0, 0, 1), 0))
boolean17 = doc.addObject("PartDesign::Boolean", "Boolean016")
body39.addObject(boolean17)
boolean17.Type = "Fuse"
boolean17.addObjects([body38])
body40 = doc.addObject("PartDesign::Body", "Body039")

# Sketch on XY plane
sketch24 = doc.addObject("Sketcher::SketchObject", "Sketch023")
body40.addObject(sketch24)
sketch24.AttachmentSupport = (doc.getObject("XY_Plane039"), [""])
sketch24.MapMode = "FlatFace"
add_polygon(sketch24, [(0, 100), (0, 0), (58, 0), (58, 100)])  # lines 0-3
sketch24.addConstraint(Sketcher.Constraint("Vertical", 0))
sketch24.addConstraint(Sketcher.Constraint("Horizontal", 1))
sketch24.addConstraint(Sketcher.Constraint("Vertical", 2))
sketch24.addConstraint(Sketcher.Constraint("Horizontal", 3))
sketch24.addConstraint(Sketcher.Constraint("Coincident", 0, 2, -1, 1))
sketch24.addConstraint(Sketcher.Constraint("DistanceX", 1, 1, 1, 2, 58.0))
sketch24.addConstraint(Sketcher.Constraint("DistanceY", 0, 2, 0, 1, 100.0))
pad24 = doc.addObject("PartDesign::Pad", "Pad023")
body40.addObject(pad24)
pad24.Profile = sketch24
pad24.Length = 1
body41 = doc.addObject("PartDesign::Body", "Body040")
doc.recompute()

body40.Placement = App.Placement(V(0, 0, 0), App.Rotation(V(0, 1, 0), 52.5))
boolean18 = doc.addObject("PartDesign::Boolean", "Boolean017")
body41.addObject(boolean18)
boolean18.Type = "Fuse"
boolean18.addObjects([body40])
body42 = doc.addObject("PartDesign::Body", "Body041")
body42.AllowCompound = True
doc.recompute()

body41.Placement = App.Placement(V(5, 0, 46), App.Rotation(V(0, 0, 1), 0))
boolean19 = doc.addObject("PartDesign::Boolean", "Boolean018")
body42.addObject(boolean19)
boolean19.Type = "Fuse"
boolean19.addObjects([body41])
doc.recompute()

boolean20 = doc.addObject("PartDesign::Boolean", "Boolean019")
body42.addObject(boolean20)
boolean20.Type = "Fuse"
boolean20.addObjects([body39])
doc.recompute()

boolean21 = doc.addObject("PartDesign::Boolean", "Boolean020")
body42.addObject(boolean21)
boolean21.Type = "Fuse"
boolean21.addObjects([body36])
doc.recompute()

boolean22 = doc.addObject("PartDesign::Boolean", "Boolean021")
body42.addObject(boolean22)
boolean22.Type = "Fuse"
boolean22.addObjects([body30])
doc.recompute()

boolean23 = doc.addObject("PartDesign::Boolean", "Boolean022")
body42.addObject(boolean23)
boolean23.Type = "Fuse"
boolean23.addObjects([body29])
doc.recompute()

boolean24 = doc.addObject("PartDesign::Boolean", "Boolean023")
body42.addObject(boolean24)
boolean24.Type = "Fuse"
boolean24.addObjects([body28])
doc.recompute()

boolean25 = doc.addObject("PartDesign::Boolean", "Boolean024")
body42.addObject(boolean25)
boolean25.Type = "Fuse"
boolean25.addObjects([body27])
doc.recompute()

boolean26 = doc.addObject("PartDesign::Boolean", "Boolean025")
body42.addObject(boolean26)
boolean26.Type = "Fuse"
boolean26.addObjects([body26])
doc.recompute()

boolean27 = doc.addObject("PartDesign::Boolean", "Boolean026")
body42.addObject(boolean27)
boolean27.Type = "Fuse"
boolean27.addObjects([body25])
doc.recompute()

boolean28 = doc.addObject("PartDesign::Boolean", "Boolean027")
body42.addObject(boolean28)
boolean28.Type = "Fuse"
boolean28.addObjects([body24])
doc.recompute()

boolean29 = doc.addObject("PartDesign::Boolean", "Boolean028")
body42.addObject(boolean29)
boolean29.Type = "Fuse"
boolean29.addObjects([body23])
doc.recompute()

boolean30 = doc.addObject("PartDesign::Boolean", "Boolean029")
body42.addObject(boolean30)
boolean30.Type = "Fuse"
boolean30.addObjects([body22])
doc.recompute()

boolean31 = doc.addObject("PartDesign::Boolean", "Boolean030")
body42.addObject(boolean31)
boolean31.Type = "Cut"
boolean31.addObjects([body21])
doc.recompute()

boolean32 = doc.addObject("PartDesign::Boolean", "Boolean031")
body42.addObject(boolean32)
boolean32.Type = "Cut"
boolean32.addObjects([body18])
doc.recompute()

boolean33 = doc.addObject("PartDesign::Boolean", "Boolean032")
body42.addObject(boolean33)
boolean33.Type = "Cut"
boolean33.addObjects([body15])
doc.recompute()

boolean34 = doc.addObject("PartDesign::Boolean", "Boolean033")
body42.addObject(boolean34)
boolean34.Type = "Cut"
boolean34.addObjects([body12])
doc.recompute()

boolean35 = doc.addObject("PartDesign::Boolean", "Boolean034")
body42.addObject(boolean35)
boolean35.Type = "Cut"
boolean35.addObjects([body9])
doc.recompute()

boolean36 = doc.addObject("PartDesign::Boolean", "Boolean035")
body42.addObject(boolean36)
boolean36.Type = "Cut"
boolean36.addObjects([body8])
doc.recompute()

boolean37 = doc.addObject("PartDesign::Boolean", "Boolean036")
body42.addObject(boolean37)
boolean37.Type = "Cut"
boolean37.addObjects([body7])
doc.recompute()

boolean38 = doc.addObject("PartDesign::Boolean", "Boolean037")
body42.addObject(boolean38)
boolean38.Type = "Cut"
boolean38.addObjects([body6])
doc.recompute()

boolean39 = doc.addObject("PartDesign::Boolean", "Boolean038")
body42.addObject(boolean39)
boolean39.Type = "Cut"
boolean39.addObjects([body5])
doc.recompute()

boolean40 = doc.addObject("PartDesign::Boolean", "Boolean039")
body42.addObject(boolean40)
boolean40.Type = "Cut"
boolean40.addObjects([body4])
doc.recompute()

boolean41 = doc.addObject("PartDesign::Boolean", "Boolean040")
body42.addObject(boolean41)
boolean41.Type = "Cut"
boolean41.addObjects([body])

doc.recompute()
